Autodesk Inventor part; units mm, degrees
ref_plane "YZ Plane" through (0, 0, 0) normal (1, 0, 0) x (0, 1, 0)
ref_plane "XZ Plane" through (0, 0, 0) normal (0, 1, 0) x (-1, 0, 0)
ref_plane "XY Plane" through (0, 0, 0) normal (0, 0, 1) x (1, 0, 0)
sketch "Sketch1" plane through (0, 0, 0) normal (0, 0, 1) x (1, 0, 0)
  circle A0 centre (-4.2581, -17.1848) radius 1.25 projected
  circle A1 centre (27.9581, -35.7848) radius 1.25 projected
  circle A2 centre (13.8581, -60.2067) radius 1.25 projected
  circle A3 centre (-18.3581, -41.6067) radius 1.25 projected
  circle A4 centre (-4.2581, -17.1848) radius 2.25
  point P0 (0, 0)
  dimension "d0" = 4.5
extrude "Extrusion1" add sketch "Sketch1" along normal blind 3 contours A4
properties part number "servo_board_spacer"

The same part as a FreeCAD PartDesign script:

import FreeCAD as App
import Part
import Sketcher

V = App.Vector
Q = App.Units.Quantity

doc = App.newDocument("Part")
params = doc.addObject("Spreadsheet::Sheet", "Params")
for row, (alias, value) in enumerate([
    ("sketch1_diameter", "4.5 mm"),
    ("sketch1_diameter2", "2.5 mm"),
    ("pad1_length", "3 mm"),
], start=1):
    params.set(f"A{row}", alias)
    params.set(f"B{row}", "=" + value)
    params.setAlias(f"B{row}", alias)

body = doc.addObject("PartDesign::Body", "Body")

# Sketch on XY plane
sketch1 = doc.addObject("Sketcher::SketchObject", "Sketch")
body.addObject(sketch1)
sketch1.AttachmentSupport = (doc.XY_Plane, [""])
sketch1.MapMode = "FlatFace"
sketch1.addGeometry([
    Part.Circle(V(-4.3, -17.2, 0), V(0, 0, 1), 2.2),
    Part.Circle(V(-4.3, -17.2, 0), V(0, 0, 1), 1.2),
], False)
sketch1.addConstraint([
    Sketcher.Constraint("Coincident", 1, 3, 0, 3),
    Sketcher.Constraint("Diameter", 0, Q("4.5 mm")),
    Sketcher.Constraint("Diameter", 1, Q("2.5 mm")),
    Sketcher.Constraint("DistanceX", 0, 3, -1, 1, Q("4.258 mm")),
    Sketcher.Constraint("DistanceY", 0, 3, -1, 1, Q("17.1848 mm")),
])
sketch1.setExpression("Constraints[1]", "Params.sketch1_diameter")
sketch1.setExpression("Constraints[2]", "Params.sketch1_diameter2")
pad1 = doc.addObject("PartDesign::Pad", "Pad")
body.addObject(pad1)
pad1.Profile = sketch1
pad1.setExpression("Length", "Params.pad1_length")

doc.recompute()
